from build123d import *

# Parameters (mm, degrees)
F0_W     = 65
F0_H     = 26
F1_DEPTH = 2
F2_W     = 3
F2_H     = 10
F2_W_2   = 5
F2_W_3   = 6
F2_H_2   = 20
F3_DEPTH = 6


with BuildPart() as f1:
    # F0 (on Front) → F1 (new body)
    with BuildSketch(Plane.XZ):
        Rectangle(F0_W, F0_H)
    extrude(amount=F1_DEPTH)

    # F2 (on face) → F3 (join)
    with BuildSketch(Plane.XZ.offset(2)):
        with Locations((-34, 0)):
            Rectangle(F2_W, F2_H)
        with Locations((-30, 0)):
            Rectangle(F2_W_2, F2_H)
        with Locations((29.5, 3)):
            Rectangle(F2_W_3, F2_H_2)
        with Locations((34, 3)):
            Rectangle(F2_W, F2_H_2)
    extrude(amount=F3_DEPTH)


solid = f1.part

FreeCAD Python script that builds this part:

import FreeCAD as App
import Part
import Sketcher
Q = App.Units.Quantity

doc = App.newDocument("Part")
body = doc.addObject("PartDesign::Body", "Body")

# Sketch on XZ plane
sketch1 = body.newObject("Sketcher::SketchObject", "Sketch")
sketch1.AttachmentSupport = (doc.getObject("XZ_Plane"), [""])
sketch1.MapMode = "FlatFace"
sketch1.addGeometry([
    Part.LineSegment(App.Vector(-32, 13, 0), App.Vector(-32, -13, 0)),
    Part.LineSegment(App.Vector(-32, -13, 0), App.Vector(32, -13, 0)),
    Part.LineSegment(App.Vector(32, -13, 0), App.Vector(32, 13, 0)),
    Part.LineSegment(App.Vector(32, 13, 0), App.Vector(-32, 13, 0)),
], False)
sketch1.addConstraint([
    Sketcher.Constraint("Coincident", 0, 2, 1, 1),
    Sketcher.Constraint("Coincident", 1, 2, 2, 1),
    Sketcher.Constraint("Coincident", 2, 2, 3, 1),
    Sketcher.Constraint("Coincident", 3, 2, 0, 1),
    Sketcher.Constraint("Vertical", 0),
    Sketcher.Constraint("Horizontal", 1),
    Sketcher.Constraint("Vertical", 2),
    Sketcher.Constraint("Horizontal", 3),
    Sketcher.Constraint("Symmetric", 0, 2, 2, 2, -1, 1),
    Sketcher.Constraint("DistanceX", 1, 1, 1, 2, Q("65 mm")),
    Sketcher.Constraint("DistanceY", 0, 2, 0, 1, Q("26 mm")),
])
pad1 = body.newObject("PartDesign::Pad", "Pad")
pad1.Profile = sketch1
pad1.Length = 2

# Sketch on XZ plane
sketch2 = body.newObject("Sketcher::SketchObject", "Sketch001")
sketch2.AttachmentSupport = (doc.getObject("XZ_Plane"), [""])
sketch2.MapMode = "FlatFace"
sketch2.AttachmentOffset = App.Placement(App.Vector(0, 0, 2), App.Rotation())
sketch2.addGeometry([
    Part.LineSegment(App.Vector(-36, 5, 0), App.Vector(-36, -5, 0)),  # 0
    Part.LineSegment(App.Vector(-36, -5, 0), App.Vector(-28, -5, 0)),  # 1
    Part.LineSegment(App.Vector(-28, -5, 0), App.Vector(-28, 5, 0)),  # 2
    Part.LineSegment(App.Vector(-28, 5, 0), App.Vector(-36, 5, 0)),  # 3
    Part.LineSegment(App.Vector(26, 13, 0), App.Vector(26, -7, 0)),  # 4
    Part.LineSegment(App.Vector(26, -7, 0), App.Vector(36, -7, 0)),  # 5
    Part.LineSegment(App.Vector(36, -7, 0), App.Vector(36, 13, 0)),  # 6
    Part.LineSegment(App.Vector(36, 13, 0), App.Vector(26, 13, 0)),  # 7
], False)
sketch2.addConstraint([
    Sketcher.Constraint("Coincident", 0, 2, 1, 1),
    Sketcher.Constraint("Coincident", 1, 2, 2, 1),
    Sketcher.Constraint("Coincident", 2, 2, 3, 1),
    Sketcher.Constraint("Coincident", 3, 2, 0, 1),
    Sketcher.Constraint("Coincident", 4, 2, 5, 1),
    Sketcher.Constraint("Coincident", 5, 2, 6, 1),
    Sketcher.Constraint("Coincident", 6, 2, 7, 1),
    Sketcher.Constraint("Coincident", 7, 2, 4, 1),
    Sketcher.Constraint("Vertical", 0),
    Sketcher.Constraint("Horizontal", 1),
    Sketcher.Constraint("Vertical", 2),
    Sketcher.Constraint("Horizontal", 3),
    Sketcher.Constraint("Vertical", 4),
    Sketcher.Constraint("Horizontal", 5),
    Sketcher.Constraint("Vertical", 6),
    Sketcher.Constraint("Horizontal", 7),
    Sketcher.Constraint("DistanceX", 1, 1, 1, 2, Q("8 mm")),
    Sketcher.Constraint("DistanceX", 5, 1, 5, 2, Q("9 mm")),
    Sketcher.Constraint("DistanceY", 0, 2, 0, 1, Q("10 mm")),
    Sketcher.Constraint("DistanceY", 4, 2, 4, 1, Q("20 mm")),
    Sketcher.Constraint("DistanceY", 0, 2, -1, 1, Q("5 mm")),
    Sketcher.Constraint("DistanceY", 4, 2, -1, 1, Q("7 mm")),
    Sketcher.Constraint("DistanceX", 1, 2, 4, 2, Q("54 mm")),
    Sketcher.Constraint("DistanceX", 0, 2, -1, 1, Q("35.5 mm")),
])
pad2 = body.newObject("PartDesign::Pad", "Pad001")
pad2.Profile = sketch2
pad2.Length = 6

doc.recompute()
